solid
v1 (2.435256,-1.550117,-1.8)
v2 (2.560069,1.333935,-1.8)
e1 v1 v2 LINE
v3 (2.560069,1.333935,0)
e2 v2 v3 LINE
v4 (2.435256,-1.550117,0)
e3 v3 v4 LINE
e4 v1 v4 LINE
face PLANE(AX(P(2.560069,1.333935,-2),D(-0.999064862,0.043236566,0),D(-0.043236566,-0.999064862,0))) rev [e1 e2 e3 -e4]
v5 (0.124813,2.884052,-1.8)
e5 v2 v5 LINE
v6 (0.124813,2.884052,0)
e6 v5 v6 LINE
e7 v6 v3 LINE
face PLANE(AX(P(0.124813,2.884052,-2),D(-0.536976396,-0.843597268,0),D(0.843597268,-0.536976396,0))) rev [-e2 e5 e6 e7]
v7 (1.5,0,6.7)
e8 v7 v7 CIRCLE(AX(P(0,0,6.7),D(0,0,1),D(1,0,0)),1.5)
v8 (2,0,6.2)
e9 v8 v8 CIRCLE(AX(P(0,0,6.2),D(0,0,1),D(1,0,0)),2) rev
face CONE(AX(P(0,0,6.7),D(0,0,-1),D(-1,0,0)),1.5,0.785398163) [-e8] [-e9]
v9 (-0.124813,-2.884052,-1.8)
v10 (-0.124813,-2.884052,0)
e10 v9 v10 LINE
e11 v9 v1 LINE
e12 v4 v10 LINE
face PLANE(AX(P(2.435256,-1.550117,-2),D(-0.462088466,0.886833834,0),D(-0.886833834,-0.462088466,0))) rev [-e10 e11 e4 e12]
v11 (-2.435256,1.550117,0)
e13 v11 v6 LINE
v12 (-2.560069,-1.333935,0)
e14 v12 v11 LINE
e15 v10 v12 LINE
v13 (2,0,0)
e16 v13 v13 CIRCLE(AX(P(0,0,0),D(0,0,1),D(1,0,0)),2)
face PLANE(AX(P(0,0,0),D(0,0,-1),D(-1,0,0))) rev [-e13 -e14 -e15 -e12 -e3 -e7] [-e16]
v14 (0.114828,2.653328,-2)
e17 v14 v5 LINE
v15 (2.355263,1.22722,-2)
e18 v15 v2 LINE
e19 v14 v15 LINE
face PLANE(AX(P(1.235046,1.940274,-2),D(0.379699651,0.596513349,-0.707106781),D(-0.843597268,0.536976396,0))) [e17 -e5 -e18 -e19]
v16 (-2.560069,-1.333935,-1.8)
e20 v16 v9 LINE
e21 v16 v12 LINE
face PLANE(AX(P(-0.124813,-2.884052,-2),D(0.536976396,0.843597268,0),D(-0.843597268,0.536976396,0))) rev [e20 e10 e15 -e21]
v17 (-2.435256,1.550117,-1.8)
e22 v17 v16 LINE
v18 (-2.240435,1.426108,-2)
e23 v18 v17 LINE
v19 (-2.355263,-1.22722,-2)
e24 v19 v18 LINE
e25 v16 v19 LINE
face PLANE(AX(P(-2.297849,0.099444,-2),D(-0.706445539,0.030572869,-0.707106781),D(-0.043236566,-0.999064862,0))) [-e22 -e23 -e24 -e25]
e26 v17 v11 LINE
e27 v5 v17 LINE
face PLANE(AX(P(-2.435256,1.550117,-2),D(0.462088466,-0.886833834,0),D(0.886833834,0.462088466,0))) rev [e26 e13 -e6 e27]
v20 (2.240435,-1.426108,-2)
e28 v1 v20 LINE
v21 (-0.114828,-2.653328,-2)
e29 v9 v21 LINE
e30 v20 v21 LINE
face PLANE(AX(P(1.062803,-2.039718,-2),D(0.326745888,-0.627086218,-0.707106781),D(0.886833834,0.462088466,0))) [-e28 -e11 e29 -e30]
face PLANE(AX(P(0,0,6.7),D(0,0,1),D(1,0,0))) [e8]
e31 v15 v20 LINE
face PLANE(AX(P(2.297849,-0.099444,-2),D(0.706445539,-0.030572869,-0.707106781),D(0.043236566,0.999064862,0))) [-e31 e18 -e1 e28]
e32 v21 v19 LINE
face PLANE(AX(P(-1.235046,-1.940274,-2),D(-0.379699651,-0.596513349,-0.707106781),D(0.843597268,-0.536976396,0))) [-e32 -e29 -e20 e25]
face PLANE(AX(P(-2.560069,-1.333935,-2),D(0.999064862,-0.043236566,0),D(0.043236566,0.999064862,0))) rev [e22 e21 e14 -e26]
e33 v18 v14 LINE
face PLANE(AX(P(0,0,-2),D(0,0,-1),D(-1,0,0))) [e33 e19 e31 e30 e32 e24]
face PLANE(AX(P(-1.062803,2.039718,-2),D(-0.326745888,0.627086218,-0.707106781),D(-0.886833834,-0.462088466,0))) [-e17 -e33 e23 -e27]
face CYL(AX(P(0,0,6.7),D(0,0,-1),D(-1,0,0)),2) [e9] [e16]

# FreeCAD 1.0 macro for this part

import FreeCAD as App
import Part
import Sketcher

V = App.Vector


def edges_at(feature, points):
    """Names of the edges that pass closest to the given points."""
    edges = feature.Shape.Edges
    near = lambda p: min(range(len(edges)), key=lambda i: edges[i].distToShape(Part.Vertex(*p))[0])
    return sorted({f"Edge{near(p) + 1}" for p in points})


def add_polygon(sketch, points):
    """Adds a closed chain of lines whose ends are joined by coincident constraints."""
    first, n = sketch.GeometryCount, len(points)
    for a, b in zip(points, points[1:] + points[:1]):
        sketch.addGeometry(Part.LineSegment(App.Vector(*a, 0), App.Vector(*b, 0)), False)
    for i in range(n):
        sketch.addConstraint(Sketcher.Constraint("Coincident", first + i, 2, first + (i + 1) % n, 1))

doc = App.newDocument("Part")
params = doc.addObject("Spreadsheet::Sheet", "Params")
for row, (alias, value) in enumerate([
    ("sketch1_diameter", "4 mm"),
    ("pad1_length", "6.7 mm"),
    ("chamfer_size", "0.5 mm"),
    ("pad2_length", "2 mm"),
    ("chamfer2_size", "0.2 mm"),
], start=1):
    params.set(f"A{row}", alias)
    params.set(f"B{row}", "=" + value)
    params.setAlias(f"B{row}", alias)

body = doc.addObject("PartDesign::Body", "Body")

# Sketch on XY plane
sketch1 = body.newObject("Sketcher::SketchObject", "Sketch")
sketch1.AttachmentSupport = (doc.getObject("XY_Plane"), [""])
sketch1.MapMode = "FlatFace"
sketch1.addGeometry(Part.Circle(V(0, 0, 0), V(0, 0, 1), 2), False)
sketch1.addConstraint([
    Sketcher.Constraint("Coincident", 0, 3, -1, 1),
    Sketcher.Constraint("Diameter", 0, 4.0),
])
sketch1.setExpression("Constraints[1]", "Params.sketch1_diameter")
pad1 = body.newObject("PartDesign::Pad", "Pad")
pad1.Profile = sketch1
pad1.setExpression("Length", "Params.pad1_length")
doc.recompute()

chamfer = body.newObject("PartDesign::Chamfer", "Chamfer")
chamfer.Base = (pad1, edges_at(pad1, [(-2, 0, 6.7)]))
chamfer.setExpression("Size", "Params.chamfer_size")

# Sketch on XY plane
sketch2 = body.newObject("Sketcher::SketchObject", "Sketch001")
sketch2.AttachmentSupport = (doc.getObject("XY_Plane"), [""])
sketch2.MapMode = "FlatFace"
add_polygon(sketch2, [(-0.1, -2.9), (-2.6, -1.3), (-2.4, 1.6), (0.1, 2.9), (2.6, 1.3), (2.4, -1.6)])  # lines 0-5
sketch2.addConstraint([
    Sketcher.Constraint("Symmetric", 0, 2, 3, 2, -1, 1),
    Sketcher.Constraint("Symmetric", 1, 2, 4, 2, -1, 1),
    Sketcher.Constraint("Symmetric", 2, 2, 5, 2, -1, 1),
    Sketcher.Constraint("Equal", 0, 1),
    Sketcher.Constraint("Equal", 1, 2),
    Sketcher.Constraint("Distance", 0, 2.886751),
    Sketcher.Constraint("DistanceX", 0, 2, -1, 1, 2.560069),
    Sketcher.Constraint("DistanceY", -1, 1, 2, 2, 2.884052),
    Sketcher.Constraint("DistanceX", 1, 2, 2, 2, 2.560069),
])
pad2 = body.newObject("PartDesign::Pad", "Pad001")
pad2.Profile = sketch2
pad2.setExpression("Length", "Params.pad2_length")
pad2.Reversed = True
doc.recompute()

chamfer2 = body.newObject("PartDesign::Chamfer", "Chamfer001")
chamfer2.Base = (pad2, edges_at(pad2, [
    (1.155, -2.217, -2),
    (-1.342, -2.109, -2),
    (-2.498, 0.108, -2),
    (-1.155, 2.217, -2),
    (1.342, 2.109, -2),
    (2.498, -0.108, -2),
]))
chamfer2.setExpression("Size", "Params.chamfer2_size")

doc.recompute()
